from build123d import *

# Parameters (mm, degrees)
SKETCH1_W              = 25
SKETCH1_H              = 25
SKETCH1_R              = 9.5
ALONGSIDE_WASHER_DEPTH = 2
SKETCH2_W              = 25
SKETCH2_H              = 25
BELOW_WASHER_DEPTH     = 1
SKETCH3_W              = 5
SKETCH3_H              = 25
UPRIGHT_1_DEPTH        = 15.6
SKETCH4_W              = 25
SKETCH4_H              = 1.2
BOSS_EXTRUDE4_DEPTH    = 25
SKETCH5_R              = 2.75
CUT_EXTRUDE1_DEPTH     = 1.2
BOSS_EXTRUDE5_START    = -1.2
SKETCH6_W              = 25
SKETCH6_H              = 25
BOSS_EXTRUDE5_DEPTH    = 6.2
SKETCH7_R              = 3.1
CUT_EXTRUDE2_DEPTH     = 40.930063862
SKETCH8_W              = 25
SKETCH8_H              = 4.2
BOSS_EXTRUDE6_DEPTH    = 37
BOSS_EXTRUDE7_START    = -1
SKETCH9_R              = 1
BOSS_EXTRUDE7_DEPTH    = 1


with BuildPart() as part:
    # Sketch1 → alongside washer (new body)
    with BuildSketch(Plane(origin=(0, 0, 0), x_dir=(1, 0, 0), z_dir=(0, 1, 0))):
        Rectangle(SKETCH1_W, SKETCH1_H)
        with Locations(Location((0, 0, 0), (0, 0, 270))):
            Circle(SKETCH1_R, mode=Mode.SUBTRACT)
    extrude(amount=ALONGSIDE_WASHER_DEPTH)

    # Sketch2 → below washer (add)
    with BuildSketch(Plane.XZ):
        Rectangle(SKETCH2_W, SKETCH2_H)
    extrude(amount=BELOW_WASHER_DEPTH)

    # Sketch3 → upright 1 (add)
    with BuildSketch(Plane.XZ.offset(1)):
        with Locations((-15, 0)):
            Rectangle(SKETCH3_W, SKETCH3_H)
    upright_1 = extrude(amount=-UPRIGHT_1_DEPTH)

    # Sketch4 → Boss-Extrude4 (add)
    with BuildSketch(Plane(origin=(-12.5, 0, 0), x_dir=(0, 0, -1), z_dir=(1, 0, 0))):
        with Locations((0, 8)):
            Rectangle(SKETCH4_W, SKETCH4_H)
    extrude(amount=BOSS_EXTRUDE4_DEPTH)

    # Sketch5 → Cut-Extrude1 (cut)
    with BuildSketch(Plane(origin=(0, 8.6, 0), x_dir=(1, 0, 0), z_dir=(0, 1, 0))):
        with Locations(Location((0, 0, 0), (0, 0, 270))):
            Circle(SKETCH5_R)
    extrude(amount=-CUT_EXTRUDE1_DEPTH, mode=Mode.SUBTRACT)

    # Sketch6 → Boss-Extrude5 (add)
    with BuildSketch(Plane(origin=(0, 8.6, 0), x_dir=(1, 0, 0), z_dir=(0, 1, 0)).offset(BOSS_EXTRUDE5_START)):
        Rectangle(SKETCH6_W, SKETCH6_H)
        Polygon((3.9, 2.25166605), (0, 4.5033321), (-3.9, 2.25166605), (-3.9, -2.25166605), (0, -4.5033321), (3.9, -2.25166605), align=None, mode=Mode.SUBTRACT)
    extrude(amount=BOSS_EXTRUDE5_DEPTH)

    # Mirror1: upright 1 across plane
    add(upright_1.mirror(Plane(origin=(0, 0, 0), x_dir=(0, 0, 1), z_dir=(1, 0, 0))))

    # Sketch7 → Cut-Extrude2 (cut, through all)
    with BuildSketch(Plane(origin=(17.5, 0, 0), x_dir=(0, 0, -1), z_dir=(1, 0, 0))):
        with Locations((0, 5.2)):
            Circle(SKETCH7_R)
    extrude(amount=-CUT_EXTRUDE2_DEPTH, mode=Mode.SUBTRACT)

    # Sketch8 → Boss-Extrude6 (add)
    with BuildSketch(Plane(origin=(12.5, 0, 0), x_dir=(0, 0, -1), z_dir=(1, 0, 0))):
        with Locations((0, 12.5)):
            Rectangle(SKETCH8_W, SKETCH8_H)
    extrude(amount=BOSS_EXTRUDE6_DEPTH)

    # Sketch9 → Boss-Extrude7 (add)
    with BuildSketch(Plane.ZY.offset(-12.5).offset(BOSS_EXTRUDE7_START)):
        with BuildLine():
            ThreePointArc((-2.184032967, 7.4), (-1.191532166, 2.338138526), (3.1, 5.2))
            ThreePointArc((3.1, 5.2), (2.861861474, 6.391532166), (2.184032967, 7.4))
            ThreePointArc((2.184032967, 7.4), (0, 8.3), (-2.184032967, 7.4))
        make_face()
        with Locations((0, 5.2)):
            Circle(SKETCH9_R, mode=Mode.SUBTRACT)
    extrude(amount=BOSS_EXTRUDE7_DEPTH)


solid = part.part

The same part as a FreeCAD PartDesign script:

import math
import FreeCAD as App
import Part
import Sketcher
Q = App.Units.Quantity

doc = App.newDocument("Part")
params = doc.addObject("Spreadsheet::Sheet", "Params")
for row, (alias, value) in enumerate([
    ("sketch1_diameter", "19 mm"),
    ("sketch1_width", "25 mm"),
    ("pad1_length", "2 mm"),
    ("sketch2_width", "25 mm"),
    ("pad2_length", "1 mm"),
    ("sketch3_width", "5 mm"),
    ("sketch3_height", "25 mm"),
    ("pad3_length", "15.6 mm"),
    ("sketch4_height", "25 mm"),
    ("sketch4_width", "1.2 mm"),
    ("pad4_length", "25 mm"),
    ("sketch5_diameter", "5.5 mm"),
    ("pocket1_length", "1.2 mm"),
    ("sketch6_width", "25 mm"),
    ("pad5_length", "6.2 mm"),
    ("sketch7_diameter", "6.2 mm"),
    ("sketch8_height", "25 mm"),
    ("sketch8_width", "4.2 mm"),
    ("pad6_length", "37 mm"),
    ("sketch9_diameter", "2 mm"),
    ("sketch9_radius", "3.1 mm"),
    ("pad7_length", "1 mm"),
], start=1):
    params.set(f"A{row}", alias)
    params.set(f"B{row}", "=" + value)
    params.setAlias(f"B{row}", alias)

body = doc.addObject("PartDesign::Body", "Body")

sketch1 = doc.addObject("Sketcher::SketchObject", "Sketch")
body.addObject(sketch1)
sketch1.AttachmentSupport = (doc.XZ_Plane, [""])
sketch1.MapMode = "FlatFace"
sketch1.addGeometry([
    Part.LineSegment(App.Vector(-12.5, -12.5, 0), App.Vector(-12.5, 12.5, 0)),
    Part.LineSegment(App.Vector(-12.5, 12.5, 0), App.Vector(12.5, 12.5, 0)),
    Part.LineSegment(App.Vector(12.5, 12.5, 0), App.Vector(12.5, -12.5, 0)),
    Part.LineSegment(App.Vector(12.5, -12.5, 0), App.Vector(-12.5, -12.5, 0)),
    Part.Circle(App.Vector(0, 0, 0), App.Vector(0, 0, 1), 9.5),
], False)
sketch1.addConstraint([
    Sketcher.Constraint("Coincident", 0, 2, 1, 1),
    Sketcher.Constraint("Coincident", 1, 2, 2, 1),
    Sketcher.Constraint("Coincident", 2, 2, 3, 1),
    Sketcher.Constraint("Coincident", 3, 2, 0, 1),
    Sketcher.Constraint("Vertical", 0),
    Sketcher.Constraint("Horizontal", 1),
    Sketcher.Constraint("Vertical", 2),
    Sketcher.Constraint("Horizontal", 3),
    Sketcher.Constraint("Coincident", 4, 3, -1, 1),
    Sketcher.Constraint("Symmetric", 0, 2, 2, 2, -1, 1),
    Sketcher.Constraint("Equal", 3, 0),
    Sketcher.Constraint("Diameter", 4, Q("19 mm")),
    Sketcher.Constraint("DistanceX", 1, 1, 1, 2, Q("25 mm")),
])
sketch1.setExpression("Constraints[11]", "Params.sketch1_diameter")
sketch1.setExpression("Constraints[12]", "Params.sketch1_width")
pad1 = doc.addObject("PartDesign::Pad", "Pad")
body.addObject(pad1)
pad1.Profile = sketch1
pad1.setExpression("Length", "Params.pad1_length")
pad1.Reversed = True

sketch2 = doc.addObject("Sketcher::SketchObject", "Sketch001")
body.addObject(sketch2)
sketch2.AttachmentSupport = (doc.XZ_Plane, [""])
sketch2.MapMode = "FlatFace"
sketch2.addGeometry([
    Part.LineSegment(App.Vector(-12.5, 12.5, 0), App.Vector(-12.5, -12.5, 0)),
    Part.LineSegment(App.Vector(-12.5, -12.5, 0), App.Vector(12.5, -12.5, 0)),
    Part.LineSegment(App.Vector(12.5, -12.5, 0), App.Vector(12.5, 12.5, 0)),
    Part.LineSegment(App.Vector(12.5, 12.5, 0), App.Vector(-12.5, 12.5, 0)),
], False)
sketch2.addConstraint([
    Sketcher.Constraint("Coincident", 0, 2, 1, 1),
    Sketcher.Constraint("Coincident", 1, 2, 2, 1),
    Sketcher.Constraint("Coincident", 2, 2, 3, 1),
    Sketcher.Constraint("Coincident", 3, 2, 0, 1),
    Sketcher.Constraint("Vertical", 0),
    Sketcher.Constraint("Horizontal", 1),
    Sketcher.Constraint("Vertical", 2),
    Sketcher.Constraint("Horizontal", 3),
    Sketcher.Constraint("Symmetric", 0, 2, 2, 2, -1, 1),
    Sketcher.Constraint("Equal", 3, 0),
    Sketcher.Constraint("DistanceX", 1, 1, 1, 2, Q("25 mm")),
])
sketch2.setExpression("Constraints[10]", "Params.sketch2_width")
pad2 = doc.addObject("PartDesign::Pad", "Pad001")
body.addObject(pad2)
pad2.Profile = sketch2
pad2.setExpression("Length", "Params.pad2_length")

sketch3 = doc.addObject("Sketcher::SketchObject", "Sketch002")
body.addObject(sketch3)
sketch3.AttachmentSupport = (doc.XZ_Plane, [""])
sketch3.MapMode = "FlatFace"
sketch3.AttachmentOffset = App.Placement(App.Vector(0, 0, 1), App.Rotation())
sketch3.addGeometry([
    Part.LineSegment(App.Vector(-17.5, 12.5, 0), App.Vector(-17.5, -12.5, 0)),
    Part.LineSegment(App.Vector(-17.5, -12.5, 0), App.Vector(-12.5, -12.5, 0)),
    Part.LineSegment(App.Vector(-12.5, -12.5, 0), App.Vector(-12.5, 12.5, 0)),
    Part.LineSegment(App.Vector(-12.5, 12.5, 0), App.Vector(-17.5, 12.5, 0)),
], False)
sketch3.addConstraint([
    Sketcher.Constraint("Coincident", 0, 2, 1, 1),
    Sketcher.Constraint("Coincident", 1, 2, 2, 1),
    Sketcher.Constraint("Coincident", 2, 2, 3, 1),
    Sketcher.Constraint("Coincident", 3, 2, 0, 1),
    Sketcher.Constraint("Vertical", 0),
    Sketcher.Constraint("Horizontal", 1),
    Sketcher.Constraint("Vertical", 2),
    Sketcher.Constraint("Horizontal", 3),
    Sketcher.Constraint("DistanceX", 1, 1, 1, 2, Q("5 mm")),
    Sketcher.Constraint("DistanceY", 0, 2, 0, 1, Q("25 mm")),
    Sketcher.Constraint("DistanceX", 0, 2, -1, 1, Q("17.5 mm")),
    Sketcher.Constraint("DistanceY", 0, 2, -1, 1, Q("12.5 mm")),
])
sketch3.setExpression("Constraints[8]", "Params.sketch3_width")
sketch3.setExpression("Constraints[9]", "Params.sketch3_height")
pad3 = doc.addObject("PartDesign::Pad", "Pad002")
body.addObject(pad3)
pad3.Profile = sketch3
pad3.setExpression("Length", "Params.pad3_length")
pad3.Reversed = True

sketch4 = doc.addObject("Sketcher::SketchObject", "Sketch003")
body.addObject(sketch4)
sketch4.AttachmentSupport = (doc.YZ_Plane, [""])
sketch4.MapMode = "FlatFace"
sketch4.AttachmentOffset = App.Placement(App.Vector(0, 0, -12.5), App.Rotation())
sketch4.addGeometry([
    Part.LineSegment(App.Vector(8.6, 12.5, 0), App.Vector(7.4, 12.5, 0)),
    Part.LineSegment(App.Vector(7.4, 12.5, 0), App.Vector(7.4, -12.5, 0)),
    Part.LineSegment(App.Vector(7.4, -12.5, 0), App.Vector(8.6, -12.5, 0)),
    Part.LineSegment(App.Vector(8.6, -12.5, 0), App.Vector(8.6, 12.5, 0)),
], False)
sketch4.addConstraint([
    Sketcher.Constraint("Coincident", 0, 2, 1, 1),
    Sketcher.Constraint("Coincident", 1, 2, 2, 1),
    Sketcher.Constraint("Coincident", 2, 2, 3, 1),
    Sketcher.Constraint("Coincident", 3, 2, 0, 1),
    Sketcher.Constraint("Horizontal", 0),
    Sketcher.Constraint("Vertical", 1),
    Sketcher.Constraint("Horizontal", 2),
    Sketcher.Constraint("Vertical", 3),
    Sketcher.Constraint("DistanceY", 1, 2, 1, 1, Q("25 mm")),
    Sketcher.Constraint("DistanceX", 0, 2, 0, 1, Q("1.2 mm")),
    Sketcher.Constraint("DistanceX", -1, 1, 0, 2, Q("7.4 mm")),
    Sketcher.Constraint("DistanceY", -1, 1, 0, 2, Q("12.5 mm")),
])
sketch4.setExpression("Constraints[8]", "Params.sketch4_height")
sketch4.setExpression("Constraints[9]", "Params.sketch4_width")
pad4 = doc.addObject("PartDesign::Pad", "Pad003")
body.addObject(pad4)
pad4.Profile = sketch4
pad4.setExpression("Length", "Params.pad4_length")

sketch5 = doc.addObject("Sketcher::SketchObject", "Sketch004")
body.addObject(sketch5)
sketch5.AttachmentSupport = (doc.XZ_Plane, [""])
sketch5.MapMode = "FlatFace"
sketch5.AttachmentOffset = App.Placement(App.Vector(0, 0, -8.6), App.Rotation())
sketch5.addGeometry(Part.Circle(App.Vector(0, 0, 0), App.Vector(0, 0, 1), 2.75), False)
sketch5.addConstraint([
    Sketcher.Constraint("Coincident", 0, 3, -1, 1),
    Sketcher.Constraint("Diameter", 0, Q("5.5 mm")),
])
sketch5.setExpression("Constraints[1]", "Params.sketch5_diameter")
pocket1 = doc.addObject("PartDesign::Pocket", "Pocket")
body.addObject(pocket1)
pocket1.Profile = sketch5
pocket1.setExpression("Length", "Params.pocket1_length")
pocket1.Reversed = True

sketch6 = doc.addObject("Sketcher::SketchObject", "Sketch005")
body.addObject(sketch6)
sketch6.AttachmentSupport = (doc.XZ_Plane, [""])
sketch6.MapMode = "FlatFace"
sketch6.AttachmentOffset = App.Placement(App.Vector(0, 0, -7.4), App.Rotation())
sketch6.addGeometry([
    Part.LineSegment(App.Vector(-12.5, -12.5, 0), App.Vector(-12.5, 12.5, 0)),
    Part.LineSegment(App.Vector(-12.5, 12.5, 0), App.Vector(12.5, 12.5, 0)),
    Part.LineSegment(App.Vector(12.5, 12.5, 0), App.Vector(12.5, -12.5, 0)),
    Part.LineSegment(App.Vector(12.5, -12.5, 0), App.Vector(-12.5, -12.5, 0)),
    Part.LineSegment(App.Vector(0, -4.503332, 0), App.Vector(3.9, -2.251666, 0)),
    Part.LineSegment(App.Vector(3.9, -2.251666, 0), App.Vector(3.9, 2.251666, 0)),
    Part.LineSegment(App.Vector(3.9, 2.251666, 0), App.Vector(0, 4.503332, 0)),
    Part.LineSegment(App.Vector(0, 4.503332, 0), App.Vector(-3.9, 2.251666, 0)),
    Part.LineSegment(App.Vector(-3.9, 2.251666, 0), App.Vector(-3.9, -2.251666, 0)),
    Part.LineSegment(App.Vector(-3.9, -2.251666, 0), App.Vector(0, -4.503332, 0)),
], False)
sketch6.addConstraint([
    Sketcher.Constraint("Coincident", 0, 2, 1, 1),
    Sketcher.Constraint("Coincident", 1, 2, 2, 1),
    Sketcher.Constraint("Coincident", 2, 2, 3, 1),
    Sketcher.Constraint("Coincident", 3, 2, 0, 1),
    Sketcher.Constraint("Coincident", 4, 2, 5, 1),
    Sketcher.Constraint("Coincident", 5, 2, 6, 1),
    Sketcher.Constraint("Coincident", 6, 2, 7, 1),
    Sketcher.Constraint("Coincident", 7, 2, 8, 1),
    Sketcher.Constraint("Coincident", 8, 2, 9, 1),
    Sketcher.Constraint("Coincident", 9, 2, 4, 1),
    Sketcher.Constraint("Vertical", 0),
    Sketcher.Constraint("Horizontal", 1),
    Sketcher.Constraint("Vertical", 2),
    Sketcher.Constraint("Horizontal", 3),
    Sketcher.Constraint("Vertical", 5),
    Sketcher.Constraint("Vertical", 8),
    Sketcher.Constraint("Symmetric", 0, 2, 2, 2, -1, 1),
    Sketcher.Constraint("Symmetric", 4, 2, 7, 2, -1, 1),
    Sketcher.Constraint("Symmetric", 6, 2, 9, 2, -1, 1),
    Sketcher.Constraint("PointOnObject", 6, 2, -2),
    Sketcher.Constraint("Parallel", 6, 9),
    Sketcher.Constraint("Horizontal", 5, 2, 7, 2),
    Sketcher.Constraint("Equal", 3, 0),
    Sketcher.Constraint("DistanceX", 1, 1, 1, 2, Q("25 mm")),
    Sketcher.Constraint("Angle", 4, Q("30 deg")),
    Sketcher.Constraint("DistanceX", -1, 1, 4, 2, Q("3.9 mm")),
    Sketcher.Constraint("DistanceY", 4, 2, 6, 2, Q("6.754998 mm")),
])
sketch6.setExpression("Constraints[23]", "Params.sketch6_width")
pad5 = doc.addObject("PartDesign::Pad", "Pad004")
body.addObject(pad5)
pad5.Profile = sketch6
pad5.setExpression("Length", "Params.pad5_length")
pad5.Reversed = True
doc.recompute()

mirrored = doc.addObject("PartDesign::Mirrored", "Mirrored")
body.addObject(mirrored)
mirrored.Originals = [pad3]
mirrored.MirrorPlane = (doc.YZ_Plane, [""])
body.Tip = mirrored

sketch7 = doc.addObject("Sketcher::SketchObject", "Sketch006")
body.addObject(sketch7)
sketch7.AttachmentSupport = (doc.YZ_Plane, [""])
sketch7.MapMode = "FlatFace"
sketch7.AttachmentOffset = App.Placement(App.Vector(0, 0, 17.5), App.Rotation())
sketch7.addGeometry(Part.Circle(App.Vector(5.2, 0, 0), App.Vector(0, 0, 1), 3.1), False)
sketch7.addConstraint([
    Sketcher.Constraint("PointOnObject", 0, 3, -1),
    Sketcher.Constraint("Diameter", 0, Q("6.2 mm")),
    Sketcher.Constraint("DistanceX", -1, 1, 0, 3, Q("5.2 mm")),
])
sketch7.setExpression("Constraints[1]", "Params.sketch7_diameter")
pocket2 = doc.addObject("PartDesign::Pocket", "Pocket001")
body.addObject(pocket2)
pocket2.Profile = sketch7
pocket2.Type = "ThroughAll"

sketch8 = doc.addObject("Sketcher::SketchObject", "Sketch007")
body.addObject(sketch8)
sketch8.AttachmentSupport = (doc.YZ_Plane, [""])
sketch8.MapMode = "FlatFace"
sketch8.AttachmentOffset = App.Placement(App.Vector(0, 0, 12.5), App.Rotation())
sketch8.addGeometry([
    Part.LineSegment(App.Vector(14.6, 12.5, 0), App.Vector(10.4, 12.5, 0)),
    Part.LineSegment(App.Vector(10.4, 12.5, 0), App.Vector(10.4, -12.5, 0)),
    Part.LineSegment(App.Vector(10.4, -12.5, 0), App.Vector(14.6, -12.5, 0)),
    Part.LineSegment(App.Vector(14.6, -12.5, 0), App.Vector(14.6, 12.5, 0)),
], False)
sketch8.addConstraint([
    Sketcher.Constraint("Coincident", 0, 2, 1, 1),
    Sketcher.Constraint("Coincident", 1, 2, 2, 1),
    Sketcher.Constraint("Coincident", 2, 2, 3, 1),
    Sketcher.Constraint("Coincident", 3, 2, 0, 1),
    Sketcher.Constraint("Horizontal", 0),
    Sketcher.Constraint("Vertical", 1),
    Sketcher.Constraint("Horizontal", 2),
    Sketcher.Constraint("Vertical", 3),
    Sketcher.Constraint("DistanceY", 1, 2, 1, 1, Q("25 mm")),
    Sketcher.Constraint("DistanceX", 0, 2, 0, 1, Q("4.2 mm")),
    Sketcher.Constraint("DistanceX", -1, 1, 0, 2, Q("10.4 mm")),
    Sketcher.Constraint("DistanceY", -1, 1, 0, 2, Q("12.5 mm")),
])
sketch8.setExpression("Constraints[8]", "Params.sketch8_height")
sketch8.setExpression("Constraints[9]", "Params.sketch8_width")
pad6 = doc.addObject("PartDesign::Pad", "Pad005")
body.addObject(pad6)
pad6.Profile = sketch8
pad6.setExpression("Length", "Params.pad6_length")

sketch9 = doc.addObject("Sketcher::SketchObject", "Sketch008")
body.addObject(sketch9)
sketch9.AttachmentSupport = (doc.YZ_Plane, [""])
sketch9.MapMode = "FlatFace"
sketch9.AttachmentOffset = App.Placement(App.Vector(0, 0, 13.5), App.Rotation())
sketch9.addGeometry([
    Part.ArcOfCircle(Part.Circle(App.Vector(5.2, 0, 0), App.Vector(0, 0, 1), 3.1), math.radians(90), math.radians(315.208675)),
    Part.ArcOfCircle(Part.Circle(App.Vector(5.2, 0, 0), App.Vector(0, 0, 1), 3.1), math.radians(44.791325), math.radians(90)),
    Part.ArcOfCircle(Part.Circle(App.Vector(5.2, 0, 0), App.Vector(0, 0, 1), 3.1), math.radians(-44.791325), math.radians(44.791325)),
    Part.Circle(App.Vector(5.2, 0, 0), App.Vector(0, 0, 1), 1),
], False)
sketch9.addConstraint([
    Sketcher.Constraint("Tangent", 0, 1, 1, 2),
    Sketcher.Constraint("Tangent", 1, 1, 2, 2),
    Sketcher.Constraint("Tangent", 2, 1, 0, 2),
    Sketcher.Constraint("Coincident", 3, 3, 0, 3),
    Sketcher.Constraint("Symmetric", 1, 1, 2, 1, -1),
    Sketcher.Constraint("Vertical", 3, 3, 0, 1),
    Sketcher.Constraint("Diameter", 3, Q("2 mm")),
    Sketcher.Constraint("Radius", 0, Q("3.1 mm")),
    Sketcher.Constraint("DistanceX", -1, 1, 0, 3, Q("5.2 mm")),
    Sketcher.Constraint("DistanceX", -1, 1, 1, 1, Q("7.4 mm")),
])
sketch9.setExpression("Constraints[6]", "Params.sketch9_diameter")
sketch9.setExpression("Constraints[7]", "Params.sketch9_radius")
pad7 = doc.addObject("PartDesign::Pad", "Pad006")
body.addObject(pad7)
pad7.Profile = sketch9
pad7.setExpression("Length", "Params.pad7_length")
pad7.Reversed = True

doc.recompute()
